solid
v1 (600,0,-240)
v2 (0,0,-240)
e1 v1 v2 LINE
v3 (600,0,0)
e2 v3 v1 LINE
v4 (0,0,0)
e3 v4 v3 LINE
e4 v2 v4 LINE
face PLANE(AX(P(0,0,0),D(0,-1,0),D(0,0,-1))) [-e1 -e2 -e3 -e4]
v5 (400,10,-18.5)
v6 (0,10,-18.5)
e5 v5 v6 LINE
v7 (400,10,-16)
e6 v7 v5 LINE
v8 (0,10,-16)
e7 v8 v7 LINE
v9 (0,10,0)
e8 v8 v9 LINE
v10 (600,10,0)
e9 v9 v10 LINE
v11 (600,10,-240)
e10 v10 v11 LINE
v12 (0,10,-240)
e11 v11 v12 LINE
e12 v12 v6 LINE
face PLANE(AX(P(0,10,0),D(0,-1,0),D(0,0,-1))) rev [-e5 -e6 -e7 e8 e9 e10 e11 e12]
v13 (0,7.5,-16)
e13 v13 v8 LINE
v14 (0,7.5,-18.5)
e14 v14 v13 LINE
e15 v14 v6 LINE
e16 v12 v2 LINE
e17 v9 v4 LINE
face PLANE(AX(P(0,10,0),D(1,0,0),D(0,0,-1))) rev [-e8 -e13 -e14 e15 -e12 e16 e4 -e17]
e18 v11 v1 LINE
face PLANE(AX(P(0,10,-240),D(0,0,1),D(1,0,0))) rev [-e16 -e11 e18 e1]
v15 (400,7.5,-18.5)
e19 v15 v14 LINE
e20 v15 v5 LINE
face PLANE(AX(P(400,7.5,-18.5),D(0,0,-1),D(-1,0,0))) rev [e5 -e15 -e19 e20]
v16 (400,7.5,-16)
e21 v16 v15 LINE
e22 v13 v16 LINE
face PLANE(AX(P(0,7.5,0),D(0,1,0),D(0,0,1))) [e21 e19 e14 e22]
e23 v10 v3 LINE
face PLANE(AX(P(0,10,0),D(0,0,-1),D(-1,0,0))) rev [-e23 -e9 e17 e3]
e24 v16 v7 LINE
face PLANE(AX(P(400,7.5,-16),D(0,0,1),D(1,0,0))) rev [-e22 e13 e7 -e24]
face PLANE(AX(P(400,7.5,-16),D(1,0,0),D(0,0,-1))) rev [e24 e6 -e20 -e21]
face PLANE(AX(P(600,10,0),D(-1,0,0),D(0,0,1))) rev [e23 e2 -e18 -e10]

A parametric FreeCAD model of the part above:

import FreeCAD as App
import Part
import Sketcher


def add_polygon(sketch, points):
    """Adds a closed chain of lines whose ends are joined by coincident constraints."""
    first, n = sketch.GeometryCount, len(points)
    for a, b in zip(points, points[1:] + points[:1]):
        sketch.addGeometry(Part.LineSegment(App.Vector(*a, 0), App.Vector(*b, 0)), False)
    for i in range(n):
        sketch.addConstraint(Sketcher.Constraint("Coincident", first + i, 2, first + (i + 1) % n, 1))

doc = App.newDocument("Part")
params = doc.addObject("Spreadsheet::Sheet", "Params")
for row, (alias, value) in enumerate([
    ("sketch1_width", "600 mm"),
    ("sketch1_height", "240 mm"),
    ("pad1_length", "10 mm"),
    ("sketch2_width", "400 mm"),
    ("sketch2_height", "2.5 mm"),
    ("pocket1_length", "2.5 mm"),
], start=1):
    params.set(f"A{row}", alias)
    params.set(f"B{row}", "=" + value)
    params.setAlias(f"B{row}", alias)

body = doc.addObject("PartDesign::Body", "Body")

# Sketch on XZ plane
sketch1 = body.newObject("Sketcher::SketchObject", "Sketch")
sketch1.AttachmentSupport = (doc.getObject("XZ_Plane"), [""])
sketch1.MapMode = "FlatFace"
add_polygon(sketch1, [(0, -240), (0, 0), (600, 0), (600, -240)])  # lines 0-3
sketch1.addConstraint([
    Sketcher.Constraint("Vertical", 0),
    Sketcher.Constraint("Horizontal", 1),
    Sketcher.Constraint("Vertical", 2),
    Sketcher.Constraint("Horizontal", 3),
    Sketcher.Constraint("Coincident", 0, 2, -1, 1),
    Sketcher.Constraint("DistanceX", 1, 1, 1, 2, 600.0),
    Sketcher.Constraint("DistanceY", 0, 1, 0, 2, 240.0),
])
sketch1.setExpression("Constraints[9]", "Params.sketch1_width")
sketch1.setExpression("Constraints[10]", "Params.sketch1_height")
pad1 = body.newObject("PartDesign::Pad", "Pad")
pad1.Profile = sketch1
pad1.setExpression("Length", "Params.pad1_length")
pad1.Reversed = True

# Sketch on XZ plane
sketch2 = body.newObject("Sketcher::SketchObject", "Sketch001")
sketch2.AttachmentSupport = (doc.getObject("XZ_Plane"), [""])
sketch2.MapMode = "FlatFace"
sketch2.AttachmentOffset = App.Placement(App.Vector(0, 0, -10), App.Rotation())
add_polygon(sketch2, [(0, -18.5), (0, -16), (400, -16), (400, -18.5)])  # lines 0-3
sketch2.addConstraint([
    Sketcher.Constraint("Vertical", 0),
    Sketcher.Constraint("Horizontal", 1),
    Sketcher.Constraint("Vertical", 2),
    Sketcher.Constraint("Horizontal", 3),
    Sketcher.Constraint("PointOnObject", 0, 2, -2),
    Sketcher.Constraint("DistanceX", 1, 1, 1, 2, 400.0),
    Sketcher.Constraint("DistanceY", 0, 1, 0, 2, 2.5),
    Sketcher.Constraint("DistanceY", 0, 2, -1, 1, 16.0),
])
sketch2.setExpression("Constraints[9]", "Params.sketch2_width")
sketch2.setExpression("Constraints[10]", "Params.sketch2_height")
pocket1 = body.newObject("PartDesign::Pocket", "Pocket")
pocket1.Profile = sketch2
pocket1.setExpression("Length", "Params.pocket1_length")
pocket1.Reversed = True

doc.recompute()
